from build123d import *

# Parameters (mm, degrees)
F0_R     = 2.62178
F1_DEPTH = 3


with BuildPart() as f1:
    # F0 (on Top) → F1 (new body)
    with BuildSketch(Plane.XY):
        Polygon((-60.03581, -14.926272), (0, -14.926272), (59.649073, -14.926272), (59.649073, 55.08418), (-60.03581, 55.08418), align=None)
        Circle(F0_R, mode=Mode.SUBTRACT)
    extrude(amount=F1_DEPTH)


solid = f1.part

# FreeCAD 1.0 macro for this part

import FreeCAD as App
import Part
import Sketcher
Q = App.Units.Quantity


def add_polygon(sketch, points):
    """Adds a closed chain of lines whose ends are joined by coincident constraints."""
    first, n = sketch.GeometryCount, len(points)
    for a, b in zip(points, points[1:] + points[:1]):
        sketch.addGeometry(Part.LineSegment(App.Vector(*a, 0), App.Vector(*b, 0)), False)
    for i in range(n):
        sketch.addConstraint(Sketcher.Constraint("Coincident", first + i, 2, first + (i + 1) % n, 1))

doc = App.newDocument("Part")
body = doc.addObject("PartDesign::Body", "Body")

# Sketch on XY plane
sketch1 = body.newObject("Sketcher::SketchObject", "Sketch")
sketch1.AttachmentSupport = (doc.getObject("XY_Plane"), [""])
sketch1.MapMode = "FlatFace"
add_polygon(sketch1, [(-60, -14.9), (59.6, -14.9), (59.6, 55.1), (-60, 55.1)])  # lines 0-3
sketch1.addGeometry(Part.Circle(App.Vector(0, 0, 0), App.Vector(0, 0, 1), 2.6), False)  # 4
sketch1.addConstraint([
    Sketcher.Constraint("Horizontal", 0),
    Sketcher.Constraint("Vertical", 1),
    Sketcher.Constraint("Horizontal", 2),
    Sketcher.Constraint("Vertical", 3),
    Sketcher.Constraint("Coincident", 4, 3, -1, 1),
    Sketcher.Constraint("Diameter", 4, Q("5.24356 mm")),
    Sketcher.Constraint("DistanceY", 1, 1, 1, 2, Q("70.010452 mm")),
    Sketcher.Constraint("DistanceX", 0, 1, 0, 2, Q("119.684883 mm")),
    Sketcher.Constraint("DistanceY", -1, 1, 1, 2, Q("55.08418 mm")),
    Sketcher.Constraint("DistanceX", 2, 2, -1, 1, Q("60.03581 mm")),
])
pad1 = body.newObject("PartDesign::Pad", "Pad")
pad1.Profile = sketch1
pad1.Length = 3

doc.recompute()
